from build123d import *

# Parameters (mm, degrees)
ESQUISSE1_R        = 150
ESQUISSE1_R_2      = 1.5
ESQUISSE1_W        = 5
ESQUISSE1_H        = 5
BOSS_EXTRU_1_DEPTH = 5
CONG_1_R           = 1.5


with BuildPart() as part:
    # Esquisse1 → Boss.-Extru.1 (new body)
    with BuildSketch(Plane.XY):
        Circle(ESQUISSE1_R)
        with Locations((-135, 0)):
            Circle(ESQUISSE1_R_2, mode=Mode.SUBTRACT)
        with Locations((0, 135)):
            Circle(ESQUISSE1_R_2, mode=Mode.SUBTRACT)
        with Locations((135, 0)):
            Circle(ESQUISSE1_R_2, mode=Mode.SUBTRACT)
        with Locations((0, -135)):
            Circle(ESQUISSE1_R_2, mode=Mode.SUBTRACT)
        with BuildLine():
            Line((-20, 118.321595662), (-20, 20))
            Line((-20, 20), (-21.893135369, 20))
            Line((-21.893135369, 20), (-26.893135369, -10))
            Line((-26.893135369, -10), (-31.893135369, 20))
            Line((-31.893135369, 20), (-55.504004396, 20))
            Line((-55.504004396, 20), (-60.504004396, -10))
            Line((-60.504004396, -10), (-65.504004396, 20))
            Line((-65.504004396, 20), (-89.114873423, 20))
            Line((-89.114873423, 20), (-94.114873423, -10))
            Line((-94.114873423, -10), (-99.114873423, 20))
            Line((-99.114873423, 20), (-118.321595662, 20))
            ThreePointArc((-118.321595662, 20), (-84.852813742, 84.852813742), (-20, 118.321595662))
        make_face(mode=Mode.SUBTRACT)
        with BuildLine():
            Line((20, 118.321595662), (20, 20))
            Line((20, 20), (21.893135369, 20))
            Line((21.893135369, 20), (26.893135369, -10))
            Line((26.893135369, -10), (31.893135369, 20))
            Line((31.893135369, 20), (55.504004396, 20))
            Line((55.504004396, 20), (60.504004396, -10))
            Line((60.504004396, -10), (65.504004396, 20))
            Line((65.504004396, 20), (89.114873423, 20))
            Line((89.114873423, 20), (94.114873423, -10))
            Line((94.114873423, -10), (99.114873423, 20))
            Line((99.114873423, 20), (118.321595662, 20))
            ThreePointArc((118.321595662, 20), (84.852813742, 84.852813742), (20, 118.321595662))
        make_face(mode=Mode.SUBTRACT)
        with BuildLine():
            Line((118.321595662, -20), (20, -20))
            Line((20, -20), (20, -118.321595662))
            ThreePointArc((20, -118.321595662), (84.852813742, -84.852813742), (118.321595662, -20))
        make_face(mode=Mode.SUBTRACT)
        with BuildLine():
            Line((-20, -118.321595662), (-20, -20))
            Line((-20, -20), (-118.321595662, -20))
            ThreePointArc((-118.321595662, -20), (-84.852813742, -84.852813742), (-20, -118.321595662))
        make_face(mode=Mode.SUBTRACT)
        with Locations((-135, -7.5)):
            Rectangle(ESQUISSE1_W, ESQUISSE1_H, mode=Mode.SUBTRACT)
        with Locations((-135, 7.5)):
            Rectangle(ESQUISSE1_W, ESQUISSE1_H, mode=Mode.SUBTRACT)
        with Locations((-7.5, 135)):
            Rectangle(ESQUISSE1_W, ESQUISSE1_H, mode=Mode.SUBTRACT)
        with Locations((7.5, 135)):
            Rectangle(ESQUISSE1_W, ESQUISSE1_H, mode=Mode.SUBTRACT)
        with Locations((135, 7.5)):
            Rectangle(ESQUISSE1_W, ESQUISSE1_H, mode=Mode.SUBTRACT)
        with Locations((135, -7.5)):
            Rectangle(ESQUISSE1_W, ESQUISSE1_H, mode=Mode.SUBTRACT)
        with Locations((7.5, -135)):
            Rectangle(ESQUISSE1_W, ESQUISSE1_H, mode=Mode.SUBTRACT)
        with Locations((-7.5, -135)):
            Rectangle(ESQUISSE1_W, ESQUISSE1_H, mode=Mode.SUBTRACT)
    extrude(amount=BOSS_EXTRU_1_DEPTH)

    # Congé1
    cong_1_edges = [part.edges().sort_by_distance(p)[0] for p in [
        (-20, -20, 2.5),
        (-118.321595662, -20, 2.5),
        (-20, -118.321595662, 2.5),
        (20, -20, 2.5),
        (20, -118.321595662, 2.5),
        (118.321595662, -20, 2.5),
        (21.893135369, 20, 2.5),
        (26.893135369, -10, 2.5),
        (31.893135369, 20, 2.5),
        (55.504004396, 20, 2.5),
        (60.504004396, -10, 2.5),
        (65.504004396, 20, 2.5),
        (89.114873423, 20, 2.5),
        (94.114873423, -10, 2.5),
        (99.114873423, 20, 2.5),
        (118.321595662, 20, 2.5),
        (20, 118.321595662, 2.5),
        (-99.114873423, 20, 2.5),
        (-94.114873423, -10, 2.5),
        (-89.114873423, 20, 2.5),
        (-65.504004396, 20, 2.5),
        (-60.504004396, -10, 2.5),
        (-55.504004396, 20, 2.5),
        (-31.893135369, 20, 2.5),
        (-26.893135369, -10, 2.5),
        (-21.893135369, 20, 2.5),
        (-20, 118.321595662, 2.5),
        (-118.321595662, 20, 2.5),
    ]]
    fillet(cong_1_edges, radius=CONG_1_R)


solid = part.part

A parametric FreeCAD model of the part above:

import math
import FreeCAD as App
import Part
import Sketcher
Q = App.Units.Quantity


def edges_at(feature, points):
    """Names of the edges that pass closest to the given points."""
    edges = feature.Shape.Edges
    near = lambda p: min(range(len(edges)), key=lambda i: edges[i].distToShape(Part.Vertex(*p))[0])
    return sorted({f"Edge{near(p) + 1}" for p in points})


def add_polygon(sketch, points):
    """Adds a closed chain of lines whose ends are joined by coincident constraints."""
    first, n = sketch.GeometryCount, len(points)
    for a, b in zip(points, points[1:] + points[:1]):
        sketch.addGeometry(Part.LineSegment(App.Vector(*a, 0), App.Vector(*b, 0)), False)
    for i in range(n):
        sketch.addConstraint(Sketcher.Constraint("Coincident", first + i, 2, first + (i + 1) % n, 1))

doc = App.newDocument("Part")
body = doc.addObject("PartDesign::Body", "Body")

# Sketch on XY plane
sketch1 = body.newObject("Sketcher::SketchObject", "Sketch")
sketch1.AttachmentSupport = (doc.getObject("XY_Plane"), [""])
sketch1.MapMode = "FlatFace"
sketch1.addGeometry(Part.Circle(App.Vector(0, 0, 0), App.Vector(0, 0, 1), 150), False)  # 0
sketch1.addGeometry(Part.LineSegment(App.Vector(-20, -20, 0), App.Vector(-20, -118.3, 0)), False)  # 1
sketch1.addGeometry(Part.ArcOfCircle(Part.Circle(App.Vector(0, 0, 0), App.Vector(0, 0, 1), 120), math.radians(-170), math.radians(-100)), False)  # 2
sketch1.addGeometry(Part.LineSegment(App.Vector(-118.3, -20, 0), App.Vector(-20, -20, 0)), False)  # 3
add_polygon(sketch1, [(-5, -137.5), (-10, -137.5), (-10, -132.5), (-5, -132.5)])  # lines 4-7
add_polygon(sketch1, [(-132.5, -10), (-137.5, -10), (-137.5, -5), (-132.5, -5)])  # lines 8-11
sketch1.addGeometry(Part.Circle(App.Vector(0, -135, 0), App.Vector(0, 0, 1), 1.5), False)  # 12
add_polygon(sketch1, [(10, -137.5), (5, -137.5), (5, -132.5), (10, -132.5)])  # lines 13-16
sketch1.addGeometry(Part.LineSegment(App.Vector(20, -20, 0), App.Vector(118.3, -20, 0)), False)  # 17
sketch1.addGeometry(Part.ArcOfCircle(Part.Circle(App.Vector(0, 0, 0), App.Vector(0, 0, 1), 120), math.radians(-80), math.radians(-10)), False)  # 18
sketch1.addGeometry(Part.LineSegment(App.Vector(20, -118.3, 0), App.Vector(20, -20, 0)), False)  # 19
add_polygon(sketch1, [(137.5, -10), (132.5, -10), (132.5, -5), (137.5, -5)])  # lines 20-23
sketch1.addGeometry(Part.Circle(App.Vector(-135, 0, 0), App.Vector(0, 0, 1), 1.5), False)  # 24
add_polygon(sketch1, [(-132.5, 5), (-137.5, 5), (-137.5, 10), (-132.5, 10)])  # lines 25-28
sketch1.addGeometry(Part.ArcOfCircle(Part.Circle(App.Vector(0, 0, 0), App.Vector(0, 0, 1), 120), math.radians(100), math.radians(170)), False)  # 29
sketch1.addGeometry(Part.LineSegment(App.Vector(-20, 118.3, 0), App.Vector(-20, 20, 0)), False)  # 30
sketch1.addGeometry(Part.LineSegment(App.Vector(-20, 20, 0), App.Vector(-21.9, 20, 0)), False)  # 31
sketch1.addGeometry(Part.LineSegment(App.Vector(-21.9, 20, 0), App.Vector(-26.9, -10, 0)), False)  # 32
sketch1.addGeometry(Part.LineSegment(App.Vector(-26.9, -10, 0), App.Vector(-31.9, 20, 0)), False)  # 33
sketch1.addGeometry(Part.LineSegment(App.Vector(-31.9, 20, 0), App.Vector(-55.5, 20, 0)), False)  # 34
sketch1.addGeometry(Part.LineSegment(App.Vector(-55.5, 20, 0), App.Vector(-60.5, -10, 0)), False)  # 35
sketch1.addGeometry(Part.LineSegment(App.Vector(-60.5, -10, 0), App.Vector(-65.5, 20, 0)), False)  # 36
sketch1.addGeometry(Part.LineSegment(App.Vector(-65.5, 20, 0), App.Vector(-89.1, 20, 0)), False)  # 37
sketch1.addGeometry(Part.LineSegment(App.Vector(-89.1, 20, 0), App.Vector(-94.1, -10, 0)), False)  # 38
sketch1.addGeometry(Part.LineSegment(App.Vector(-94.1, -10, 0), App.Vector(-99.1, 20, 0)), False)  # 39
sketch1.addGeometry(Part.LineSegment(App.Vector(-99.1, 20, 0), App.Vector(-118.3, 20, 0)), False)  # 40
add_polygon(sketch1, [(-5, 132.5), (-10, 132.5), (-10, 137.5), (-5, 137.5)])  # lines 41-44
sketch1.addGeometry(Part.Circle(App.Vector(135, 0, 0), App.Vector(0, 0, 1), 1.5), False)  # 45
add_polygon(sketch1, [(137.5, 5), (132.5, 5), (132.5, 10), (137.5, 10)])  # lines 46-49
sketch1.addGeometry(Part.LineSegment(App.Vector(20, 20, 0), App.Vector(20, 118.3, 0)), False)  # 50
sketch1.addGeometry(Part.ArcOfCircle(Part.Circle(App.Vector(0, 0, 0), App.Vector(0, 0, 1), 120), math.radians(10), math.radians(80)), False)  # 51
sketch1.addGeometry(Part.LineSegment(App.Vector(118.3, 20, 0), App.Vector(99.1, 20, 0)), False)  # 52
sketch1.addGeometry(Part.LineSegment(App.Vector(99.1, 20, 0), App.Vector(94.1, -10, 0)), False)  # 53
sketch1.addGeometry(Part.LineSegment(App.Vector(94.1, -10, 0), App.Vector(89.1, 20, 0)), False)  # 54
sketch1.addGeometry(Part.LineSegment(App.Vector(89.1, 20, 0), App.Vector(65.5, 20, 0)), False)  # 55
sketch1.addGeometry(Part.LineSegment(App.Vector(65.5, 20, 0), App.Vector(60.5, -10, 0)), False)  # 56
sketch1.addGeometry(Part.LineSegment(App.Vector(60.5, -10, 0), App.Vector(55.5, 20, 0)), False)  # 57
sketch1.addGeometry(Part.LineSegment(App.Vector(55.5, 20, 0), App.Vector(31.9, 20, 0)), False)  # 58
sketch1.addGeometry(Part.LineSegment(App.Vector(31.9, 20, 0), App.Vector(26.9, -10, 0)), False)  # 59
sketch1.addGeometry(Part.LineSegment(App.Vector(26.9, -10, 0), App.Vector(21.9, 20, 0)), False)  # 60
sketch1.addGeometry(Part.LineSegment(App.Vector(21.9, 20, 0), App.Vector(20, 20, 0)), False)  # 61
sketch1.addGeometry(Part.Circle(App.Vector(0, 135, 0), App.Vector(0, 0, 1), 1.5), False)  # 62
add_polygon(sketch1, [(10, 132.5), (5, 132.5), (5, 137.5), (10, 137.5)])  # lines 63-66
sketch1.addConstraint(Sketcher.Constraint("Coincident", 1, 2, 2, 2))
sketch1.addConstraint(Sketcher.Constraint("Coincident", 2, 1, 3, 1))
sketch1.addConstraint(Sketcher.Constraint("Coincident", 3, 2, 1, 1))
sketch1.addConstraint(Sketcher.Constraint("Coincident", 17, 2, 18, 2))
sketch1.addConstraint(Sketcher.Constraint("Coincident", 18, 1, 19, 1))
sketch1.addConstraint(Sketcher.Constraint("Coincident", 19, 2, 17, 1))
sketch1.addConstraint(Sketcher.Constraint("Coincident", 29, 1, 30, 1))
sketch1.addConstraint(Sketcher.Constraint("Coincident", 30, 2, 31, 1))
sketch1.addConstraint(Sketcher.Constraint("Coincident", 31, 2, 32, 1))
sketch1.addConstraint(Sketcher.Constraint("Coincident", 32, 2, 33, 1))
sketch1.addConstraint(Sketcher.Constraint("Coincident", 33, 2, 34, 1))
sketch1.addConstraint(Sketcher.Constraint("Coincident", 34, 2, 35, 1))
sketch1.addConstraint(Sketcher.Constraint("Coincident", 35, 2, 36, 1))
sketch1.addConstraint(Sketcher.Constraint("Coincident", 36, 2, 37, 1))
sketch1.addConstraint(Sketcher.Constraint("Coincident", 37, 2, 38, 1))
sketch1.addConstraint(Sketcher.Constraint("Coincident", 38, 2, 39, 1))
sketch1.addConstraint(Sketcher.Constraint("Coincident", 39, 2, 40, 1))
sketch1.addConstraint(Sketcher.Constraint("Coincident", 40, 2, 29, 2))
sketch1.addConstraint(Sketcher.Constraint("Coincident", 50, 2, 51, 2))
sketch1.addConstraint(Sketcher.Constraint("Coincident", 51, 1, 52, 1))
sketch1.addConstraint(Sketcher.Constraint("Coincident", 52, 2, 53, 1))
sketch1.addConstraint(Sketcher.Constraint("Coincident", 53, 2, 54, 1))
sketch1.addConstraint(Sketcher.Constraint("Coincident", 54, 2, 55, 1))
sketch1.addConstraint(Sketcher.Constraint("Coincident", 55, 2, 56, 1))
sketch1.addConstraint(Sketcher.Constraint("Coincident", 56, 2, 57, 1))
sketch1.addConstraint(Sketcher.Constraint("Coincident", 57, 2, 58, 1))
sketch1.addConstraint(Sketcher.Constraint("Coincident", 58, 2, 59, 1))
sketch1.addConstraint(Sketcher.Constraint("Coincident", 59, 2, 60, 1))
sketch1.addConstraint(Sketcher.Constraint("Coincident", 60, 2, 61, 1))
sketch1.addConstraint(Sketcher.Constraint("Coincident", 61, 2, 50, 1))
sketch1.addConstraint(Sketcher.Constraint("Vertical", 1))
sketch1.addConstraint(Sketcher.Constraint("Horizontal", 3))
sketch1.addConstraint(Sketcher.Constraint("Horizontal", 4))
sketch1.addConstraint(Sketcher.Constraint("Vertical", 5))
sketch1.addConstraint(Sketcher.Constraint("Horizontal", 6))
sketch1.addConstraint(Sketcher.Constraint("Vertical", 7))
sketch1.addConstraint(Sketcher.Constraint("Horizontal", 8))
sketch1.addConstraint(Sketcher.Constraint("Vertical", 9))
sketch1.addConstraint(Sketcher.Constraint("Horizontal", 10))
sketch1.addConstraint(Sketcher.Constraint("Vertical", 11))
sketch1.addConstraint(Sketcher.Constraint("Horizontal", 13))
sketch1.addConstraint(Sketcher.Constraint("Vertical", 14))
sketch1.addConstraint(Sketcher.Constraint("Horizontal", 15))
sketch1.addConstraint(Sketcher.Constraint("Vertical", 16))
sketch1.addConstraint(Sketcher.Constraint("Horizontal", 17))
sketch1.addConstraint(Sketcher.Constraint("Vertical", 19))
sketch1.addConstraint(Sketcher.Constraint("Horizontal", 20))
sketch1.addConstraint(Sketcher.Constraint("Vertical", 21))
sketch1.addConstraint(Sketcher.Constraint("Horizontal", 22))
sketch1.addConstraint(Sketcher.Constraint("Vertical", 23))
sketch1.addConstraint(Sketcher.Constraint("Horizontal", 25))
sketch1.addConstraint(Sketcher.Constraint("Vertical", 26))
sketch1.addConstraint(Sketcher.Constraint("Horizontal", 27))
sketch1.addConstraint(Sketcher.Constraint("Vertical", 28))
sketch1.addConstraint(Sketcher.Constraint("Vertical", 30))
sketch1.addConstraint(Sketcher.Constraint("Horizontal", 31))
sketch1.addConstraint(Sketcher.Constraint("Horizontal", 34))
sketch1.addConstraint(Sketcher.Constraint("Horizontal", 37))
sketch1.addConstraint(Sketcher.Constraint("Horizontal", 40))
sketch1.addConstraint(Sketcher.Constraint("Horizontal", 41))
sketch1.addConstraint(Sketcher.Constraint("Vertical", 42))
sketch1.addConstraint(Sketcher.Constraint("Horizontal", 43))
sketch1.addConstraint(Sketcher.Constraint("Vertical", 44))
sketch1.addConstraint(Sketcher.Constraint("Horizontal", 46))
sketch1.addConstraint(Sketcher.Constraint("Vertical", 47))
sketch1.addConstraint(Sketcher.Constraint("Horizontal", 48))
sketch1.addConstraint(Sketcher.Constraint("Vertical", 49))
sketch1.addConstraint(Sketcher.Constraint("Vertical", 50))
sketch1.addConstraint(Sketcher.Constraint("Horizontal", 52))
sketch1.addConstraint(Sketcher.Constraint("Horizontal", 55))
sketch1.addConstraint(Sketcher.Constraint("Horizontal", 58))
sketch1.addConstraint(Sketcher.Constraint("Horizontal", 61))
sketch1.addConstraint(Sketcher.Constraint("Horizontal", 63))
sketch1.addConstraint(Sketcher.Constraint("Vertical", 64))
sketch1.addConstraint(Sketcher.Constraint("Horizontal", 65))
sketch1.addConstraint(Sketcher.Constraint("Vertical", 66))
sketch1.addConstraint(Sketcher.Constraint("Coincident", 0, 3, -1, 1))
sketch1.addConstraint(Sketcher.Constraint("Coincident", 2, 3, -1, 1))
sketch1.addConstraint(Sketcher.Constraint("Coincident", 18, 3, -1, 1))
sketch1.addConstraint(Sketcher.Constraint("Coincident", 29, 3, -1, 1))
sketch1.addConstraint(Sketcher.Constraint("Coincident", 51, 3, -1, 1))
sketch1.addConstraint(Sketcher.Constraint("Equal", 2, 18))
sketch1.addConstraint(Sketcher.Constraint("Equal", 12, 24))
sketch1.addConstraint(Sketcher.Constraint("Equal", 18, 29))
sketch1.addConstraint(Sketcher.Constraint("Equal", 24, 45))
sketch1.addConstraint(Sketcher.Constraint("Equal", 29, 51))
sketch1.addConstraint(Sketcher.Constraint("Equal", 45, 62))
sketch1.addConstraint(Sketcher.Constraint("Symmetric", 24, 3, 45, 3, -1, 1))
sketch1.addConstraint(Sketcher.Constraint("Symmetric", 12, 3, 62, 3, -1, 1))
sketch1.addConstraint(Sketcher.Constraint("Symmetric", 22, 2, 25, 2, -1, 1))
sketch1.addConstraint(Sketcher.Constraint("Symmetric", 20, 2, 27, 2, -1, 1))
sketch1.addConstraint(Sketcher.Constraint("Symmetric", 19, 2, 30, 2, -1, 1))
sketch1.addConstraint(Sketcher.Constraint("Symmetric", 15, 2, 41, 2, -1, 1))
sketch1.addConstraint(Sketcher.Constraint("Symmetric", 13, 2, 43, 2, -1, 1))
sketch1.addConstraint(Sketcher.Constraint("Symmetric", 10, 2, 46, 2, -1, 1))
sketch1.addConstraint(Sketcher.Constraint("Symmetric", 8, 2, 48, 2, -1, 1))
sketch1.addConstraint(Sketcher.Constraint("Symmetric", 3, 2, 61, 2, -1, 1))
sketch1.addConstraint(Sketcher.Constraint("Symmetric", 6, 2, 63, 2, -1, 1))
sketch1.addConstraint(Sketcher.Constraint("Symmetric", 4, 2, 65, 2, -1, 1))
sketch1.addConstraint(Sketcher.Constraint("Symmetric", 7, 2, 13, 2, -2))
sketch1.addConstraint(Sketcher.Constraint("Symmetric", 5, 2, 15, 2, -2))
sketch1.addConstraint(Sketcher.Constraint("Symmetric", 3, 2, 19, 2, -2))
sketch1.addConstraint(Sketcher.Constraint("Symmetric", 11, 2, 20, 2, -2))
sketch1.addConstraint(Sketcher.Constraint("Symmetric", 9, 2, 22, 2, -2))
sketch1.addConstraint(Sketcher.Constraint("Symmetric", 39, 2, 52, 2, -2))
sketch1.addConstraint(Sketcher.Constraint("Symmetric", 38, 2, 53, 2, -2))
sketch1.addConstraint(Sketcher.Constraint("Symmetric", 37, 2, 54, 2, -2))
sketch1.addConstraint(Sketcher.Constraint("Symmetric", 35, 2, 56, 2, -2))
sketch1.addConstraint(Sketcher.Constraint("Symmetric", 34, 2, 57, 2, -2))
sketch1.addConstraint(Sketcher.Constraint("Symmetric", 32, 2, 59, 2, -2))
sketch1.addConstraint(Sketcher.Constraint("PointOnObject", 12, 3, -2))
sketch1.addConstraint(Sketcher.Constraint("PointOnObject", 24, 3, -1))
sketch1.addConstraint(Sketcher.Constraint("Parallel", 32, 35))
sketch1.addConstraint(Sketcher.Constraint("Parallel", 33, 36))
sketch1.addConstraint(Sketcher.Constraint("Parallel", 35, 38))
sketch1.addConstraint(Sketcher.Constraint("Parallel", 36, 39))
sketch1.addConstraint(Sketcher.Constraint("Parallel", 38, 53))
sketch1.addConstraint(Sketcher.Constraint("Parallel", 53, 56))
sketch1.addConstraint(Sketcher.Constraint("Parallel", 56, 59))
sketch1.addConstraint(Sketcher.Constraint("Parallel", 57, 60))
sketch1.addConstraint(Sketcher.Constraint("Horizontal", 23, 2, 32, 2))
sketch1.addConstraint(Sketcher.Constraint("Horizontal", 31, 2, 33, 2))
sketch1.addConstraint(Sketcher.Constraint("Horizontal", 32, 2, 35, 2))
sketch1.addConstraint(Sketcher.Constraint("Horizontal", 34, 2, 36, 2))
sketch1.addConstraint(Sketcher.Constraint("Horizontal", 35, 2, 38, 2))
sketch1.addConstraint(Sketcher.Constraint("Horizontal", 37, 2, 39, 2))
sketch1.addConstraint(Sketcher.Constraint("Equal", 6, 8))
sketch1.addConstraint(Sketcher.Constraint("Equal", 34, 37))
sketch1.addConstraint(Sketcher.Constraint("Equal", 17, 1))
sketch1.addConstraint(Sketcher.Constraint("Equal", 65, 5))
sketch1.addConstraint(Sketcher.Constraint("Equal", 7, 9))
sketch1.addConstraint(Sketcher.Constraint("Diameter", 0, Q("300 mm")))
sketch1.addConstraint(Sketcher.Constraint("Diameter", 12, Q("3 mm")))
sketch1.addConstraint(Sketcher.Constraint("Radius", 2, Q("120 mm")))
sketch1.addConstraint(Sketcher.Constraint("DistanceX", 4, 2, 4, 1, Q("5 mm")))
sketch1.addConstraint(Sketcher.Constraint("DistanceY", 12, 3, -1, 1, Q("135 mm")))
sketch1.addConstraint(Sketcher.Constraint("DistanceX", 24, 3, -1, 1, Q("135 mm")))
sketch1.addConstraint(Sketcher.Constraint("DistanceX", 1, 2, -1, 1, Q("20 mm")))
sketch1.addConstraint(Sketcher.Constraint("DistanceX", 4, 2, -1, 1, Q("10 mm")))
sketch1.addConstraint(Sketcher.Constraint("DistanceY", 8, 2, -1, 1, Q("10 mm")))
sketch1.addConstraint(Sketcher.Constraint("DistanceY", 4, 2, -1, 1, Q("137.5 mm")))
sketch1.addConstraint(Sketcher.Constraint("DistanceX", 8, 2, -1, 1, Q("137.5 mm")))
sketch1.addConstraint(Sketcher.Constraint("DistanceX", 34, 2, 34, 1, Q("23.610869 mm")))
sketch1.addConstraint(Sketcher.Constraint("DistanceX", 31, 2, 31, 1, Q("1.893135 mm")))
sketch1.addConstraint(Sketcher.Constraint("DistanceX", 40, 2, 40, 1, Q("19.206722 mm")))
pad1 = body.newObject("PartDesign::Pad", "Pad")
pad1.Profile = sketch1
pad1.Length = 5
doc.recompute()

fillet = body.newObject("PartDesign::Fillet", "Fillet")
fillet.Base = (pad1, edges_at(pad1, [
    (-20, -20, 2.5),
    (-118.322, -20, 2.5),
    (-20, -118.322, 2.5),
    (20, -20, 2.5),
    (20, -118.322, 2.5),
    (118.322, -20, 2.5),
    (21.893, 20, 2.5),
    (26.893, -10, 2.5),
    (31.893, 20, 2.5),
    (55.504, 20, 2.5),
    (60.504, -10, 2.5),
    (65.504, 20, 2.5),
    (89.115, 20, 2.5),
    (94.115, -10, 2.5),
    (99.115, 20, 2.5),
    (118.322, 20, 2.5),
    (20, 118.322, 2.5),
    (-99.115, 20, 2.5),
    (-94.115, -10, 2.5),
    (-89.115, 20, 2.5),
    (-65.504, 20, 2.5),
    (-60.504, -10, 2.5),
    (-55.504, 20, 2.5),
    (-31.893, 20, 2.5),
    (-26.893, -10, 2.5),
    (-21.893, 20, 2.5),
    (-20, 118.322, 2.5),
    (-118.322, 20, 2.5),
]))
fillet.Radius = 1.5

doc.recompute()
